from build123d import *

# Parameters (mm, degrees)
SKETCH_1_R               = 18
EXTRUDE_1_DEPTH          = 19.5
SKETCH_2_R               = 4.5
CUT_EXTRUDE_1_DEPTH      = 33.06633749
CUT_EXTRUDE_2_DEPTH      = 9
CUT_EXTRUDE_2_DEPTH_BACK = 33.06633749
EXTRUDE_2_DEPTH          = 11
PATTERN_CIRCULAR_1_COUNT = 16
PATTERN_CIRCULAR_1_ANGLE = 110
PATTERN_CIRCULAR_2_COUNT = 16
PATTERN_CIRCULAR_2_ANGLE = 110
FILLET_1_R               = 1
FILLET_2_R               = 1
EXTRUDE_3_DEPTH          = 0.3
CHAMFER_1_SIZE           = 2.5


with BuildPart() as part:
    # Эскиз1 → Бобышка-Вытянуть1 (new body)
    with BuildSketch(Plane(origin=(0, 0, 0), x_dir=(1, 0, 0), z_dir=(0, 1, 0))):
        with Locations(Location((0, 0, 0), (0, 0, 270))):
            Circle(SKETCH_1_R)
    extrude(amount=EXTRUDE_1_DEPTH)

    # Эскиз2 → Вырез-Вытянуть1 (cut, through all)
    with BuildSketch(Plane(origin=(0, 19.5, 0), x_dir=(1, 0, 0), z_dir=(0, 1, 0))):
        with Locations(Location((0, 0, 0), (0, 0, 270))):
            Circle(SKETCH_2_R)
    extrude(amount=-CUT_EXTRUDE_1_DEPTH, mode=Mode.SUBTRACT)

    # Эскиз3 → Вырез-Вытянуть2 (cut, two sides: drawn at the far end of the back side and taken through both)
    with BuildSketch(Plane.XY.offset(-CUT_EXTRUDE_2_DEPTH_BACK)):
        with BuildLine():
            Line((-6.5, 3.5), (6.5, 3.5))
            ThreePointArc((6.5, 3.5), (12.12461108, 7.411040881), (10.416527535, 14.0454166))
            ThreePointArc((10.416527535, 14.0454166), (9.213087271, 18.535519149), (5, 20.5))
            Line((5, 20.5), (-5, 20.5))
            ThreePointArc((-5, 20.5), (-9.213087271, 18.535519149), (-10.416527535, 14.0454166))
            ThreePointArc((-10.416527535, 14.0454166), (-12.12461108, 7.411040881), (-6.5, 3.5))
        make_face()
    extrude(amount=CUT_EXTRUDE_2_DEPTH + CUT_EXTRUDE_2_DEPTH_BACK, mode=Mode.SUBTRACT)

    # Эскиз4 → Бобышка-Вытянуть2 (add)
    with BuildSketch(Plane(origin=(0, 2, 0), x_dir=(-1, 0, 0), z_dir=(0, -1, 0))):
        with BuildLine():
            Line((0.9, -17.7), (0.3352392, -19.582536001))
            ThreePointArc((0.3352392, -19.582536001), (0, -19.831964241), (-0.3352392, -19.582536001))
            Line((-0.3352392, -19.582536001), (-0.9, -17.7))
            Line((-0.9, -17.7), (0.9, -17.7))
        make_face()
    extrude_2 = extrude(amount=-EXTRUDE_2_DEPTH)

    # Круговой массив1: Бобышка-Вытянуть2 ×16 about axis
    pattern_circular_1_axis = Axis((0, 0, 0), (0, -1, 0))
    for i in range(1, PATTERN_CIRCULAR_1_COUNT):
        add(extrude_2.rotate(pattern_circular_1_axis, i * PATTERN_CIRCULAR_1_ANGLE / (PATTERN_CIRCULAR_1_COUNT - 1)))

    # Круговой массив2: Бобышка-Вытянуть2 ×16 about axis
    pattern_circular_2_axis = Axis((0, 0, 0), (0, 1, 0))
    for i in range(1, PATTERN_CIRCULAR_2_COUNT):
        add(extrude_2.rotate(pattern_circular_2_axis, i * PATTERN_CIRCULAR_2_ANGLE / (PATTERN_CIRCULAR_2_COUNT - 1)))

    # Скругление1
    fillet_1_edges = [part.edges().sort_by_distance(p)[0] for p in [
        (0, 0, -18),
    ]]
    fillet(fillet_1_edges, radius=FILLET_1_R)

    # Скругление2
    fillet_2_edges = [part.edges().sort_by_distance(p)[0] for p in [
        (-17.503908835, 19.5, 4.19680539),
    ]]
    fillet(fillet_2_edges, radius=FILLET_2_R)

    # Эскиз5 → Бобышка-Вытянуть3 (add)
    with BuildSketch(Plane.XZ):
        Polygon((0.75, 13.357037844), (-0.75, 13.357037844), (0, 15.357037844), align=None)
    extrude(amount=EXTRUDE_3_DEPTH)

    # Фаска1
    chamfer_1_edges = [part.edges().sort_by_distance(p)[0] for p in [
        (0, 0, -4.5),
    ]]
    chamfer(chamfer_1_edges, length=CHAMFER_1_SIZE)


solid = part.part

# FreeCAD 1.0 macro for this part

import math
import FreeCAD as App
import Part
import Sketcher


def edges_at(feature, points):
    """Names of the edges that pass closest to the given points."""
    edges = feature.Shape.Edges
    near = lambda p: min(range(len(edges)), key=lambda i: edges[i].distToShape(Part.Vertex(*p))[0])
    return sorted({f"Edge{near(p) + 1}" for p in points})


def add_polygon(sketch, points):
    """Adds a closed chain of lines whose ends are joined by coincident constraints."""
    first, n = sketch.GeometryCount, len(points)
    for a, b in zip(points, points[1:] + points[:1]):
        sketch.addGeometry(Part.LineSegment(App.Vector(*a, 0), App.Vector(*b, 0)), False)
    for i in range(n):
        sketch.addConstraint(Sketcher.Constraint("Coincident", first + i, 2, first + (i + 1) % n, 1))

doc = App.newDocument("Part")
body = doc.addObject("PartDesign::Body", "Body")

# Sketch on XZ plane
sketch1 = doc.addObject("Sketcher::SketchObject", "Sketch")
body.addObject(sketch1)
sketch1.AttachmentSupport = (doc.XZ_Plane, [""])
sketch1.MapMode = "FlatFace"
sketch1.addGeometry(Part.Circle(App.Vector(0, 0, 0), App.Vector(0, 0, 1), 18), False)
sketch1.addConstraint(Sketcher.Constraint("Coincident", 0, 3, -1, 1))
sketch1.addConstraint(Sketcher.Constraint("Diameter", 0, 36.0))
pad1 = doc.addObject("PartDesign::Pad", "Pad")
body.addObject(pad1)
pad1.Profile = sketch1
pad1.Length = 19.5
pad1.Reversed = True

# Sketch on XZ plane
sketch2 = doc.addObject("Sketcher::SketchObject", "Sketch001")
body.addObject(sketch2)
sketch2.AttachmentSupport = (doc.XZ_Plane, [""])
sketch2.MapMode = "FlatFace"
sketch2.AttachmentOffset = App.Placement(App.Vector(0, 0, -19.5), App.Rotation())
sketch2.addGeometry(Part.Circle(App.Vector(0, 0, 0), App.Vector(0, 0, 1), 4.5), False)
sketch2.addConstraint(Sketcher.Constraint("Coincident", 0, 3, -1, 1))
sketch2.addConstraint(Sketcher.Constraint("Diameter", 0, 9.0))
pocket1 = doc.addObject("PartDesign::Pocket", "Pocket")
body.addObject(pocket1)
pocket1.Profile = sketch2
pocket1.Type = "ThroughAll"
pocket1.Reversed = True

# Sketch on XY plane
sketch3 = doc.addObject("Sketcher::SketchObject", "Sketch002")
body.addObject(sketch3)
sketch3.AttachmentSupport = (doc.XY_Plane, [""])
sketch3.MapMode = "FlatFace"
sketch3.addGeometry(Part.LineSegment(App.Vector(-6, 4, 0), App.Vector(6, 4, 0)), False)
sketch3.addGeometry(Part.ArcOfCircle(Part.Circle(App.Vector(6, 10, 0), App.Vector(0, 0, 1), 6), math.radians(-90), math.radians(49)), False)
sketch3.addGeometry(Part.ArcOfCircle(Part.Circle(App.Vector(5, 15, 0), App.Vector(0, 0, 1), 6), math.radians(-10), math.radians(90)), False)
sketch3.addGeometry(Part.LineSegment(App.Vector(5, 20, 0), App.Vector(-5, 20, 0)), False)
sketch3.addGeometry(Part.ArcOfCircle(Part.Circle(App.Vector(-5, 15, 0), App.Vector(0, 0, 1), 6), math.radians(90), math.radians(190)), False)
sketch3.addGeometry(Part.ArcOfCircle(Part.Circle(App.Vector(-6, 10, 0), App.Vector(0, 0, 1), 6), math.radians(131), math.radians(270)), False)
sketch3.addConstraint(Sketcher.Constraint("Tangent", 0, 2, 1, 1))
sketch3.addConstraint(Sketcher.Constraint("Coincident", 1, 2, 2, 1))
sketch3.addConstraint(Sketcher.Constraint("Tangent", 2, 2, 3, 1))
sketch3.addConstraint(Sketcher.Constraint("Tangent", 3, 2, 4, 1))
sketch3.addConstraint(Sketcher.Constraint("Coincident", 4, 2, 5, 1))
sketch3.addConstraint(Sketcher.Constraint("Tangent", 5, 2, 0, 1))
sketch3.addConstraint(Sketcher.Constraint("Horizontal", 0))
sketch3.addConstraint(Sketcher.Constraint("Horizontal", 3))
sketch3.addConstraint(Sketcher.Constraint("Equal", 2, 4))
sketch3.addConstraint(Sketcher.Constraint("Equal", 1, 5))
sketch3.addConstraint(Sketcher.Constraint("Symmetric", 1, 2, 4, 2, -2))
sketch3.addConstraint(Sketcher.Constraint("Radius", 1, 6.0))
sketch3.addConstraint(Sketcher.Constraint("Radius", 2, 5.5))
sketch3.addConstraint(Sketcher.Constraint("DistanceX", 0, 1, 0, 2, 13.0))
sketch3.addConstraint(Sketcher.Constraint("DistanceX", 3, 2, 3, 1, 10.0))
sketch3.addConstraint(Sketcher.Constraint("DistanceY", -1, 1, 2, 3, 15.0))
sketch3.addConstraint(Sketcher.Constraint("DistanceY", 1, 3, 2, 2, 11.0))
pocket2 = doc.addObject("PartDesign::Pocket", "Pocket001")
body.addObject(pocket2)
pocket2.Profile = sketch3
pocket2.Type = "TwoLengths"
pocket2.Length = 9
pocket2.Length2 = 33.066337
pocket2.Reversed = True

# Sketch on XZ plane
sketch4 = doc.addObject("Sketcher::SketchObject", "Sketch003")
body.addObject(sketch4)
sketch4.AttachmentSupport = (doc.XZ_Plane, [""])
sketch4.MapMode = "FlatFace"
sketch4.AttachmentOffset = App.Placement(App.Vector(0, 0, -2), App.Rotation())
sketch4.addGeometry(Part.LineSegment(App.Vector(-0.34, 19.58, 0), App.Vector(-0.9, 17.7, 0)), False)
sketch4.addGeometry(Part.LineSegment(App.Vector(-0.9, 17.7, 0), App.Vector(0.9, 17.7, 0)), False)
sketch4.addGeometry(Part.LineSegment(App.Vector(0.9, 17.7, 0), App.Vector(0.34, 19.58, 0)), False)
sketch4.addGeometry(Part.ArcOfCircle(Part.Circle(App.Vector(0, 19.48, 0), App.Vector(0, 0, 1), 0.35), math.radians(17), math.radians(163)), False)
sketch4.addConstraint(Sketcher.Constraint("Coincident", 0, 2, 1, 1))
sketch4.addConstraint(Sketcher.Constraint("Coincident", 1, 2, 2, 1))
sketch4.addConstraint(Sketcher.Constraint("Tangent", 2, 2, 3, 1))
sketch4.addConstraint(Sketcher.Constraint("Tangent", 3, 2, 0, 1))
sketch4.addConstraint(Sketcher.Constraint("Horizontal", 1))
sketch4.addConstraint(Sketcher.Constraint("Symmetric", 2, 2, 3, 2, -2))
sketch4.addConstraint(Sketcher.Constraint("Radius", 3, 0.35))
sketch4.addConstraint(Sketcher.Constraint("DistanceX", 1, 1, 1, 2, 1.8))
sketch4.addConstraint(Sketcher.Constraint("DistanceY", -1, 1, 0, 2, 17.7))
sketch4.addConstraint(Sketcher.Constraint("DistanceX", -1, 1, 2, 2, 0.335239))
pad2 = doc.addObject("PartDesign::Pad", "Pad001")
body.addObject(pad2)
pad2.Profile = sketch4
pad2.Length = 11
pad2.Reversed = True
doc.recompute()

polarpattern = doc.addObject("PartDesign::PolarPattern", "PolarPattern")
body.addObject(polarpattern)
polarpattern.Originals = [pad2]
polarpattern.Axis = (doc.Y_Axis, [""])
polarpattern.Angle = 110
polarpattern.Occurrences = 16
polarpattern.Reversed = True
body.Tip = polarpattern
doc.recompute()

polarpattern2 = doc.addObject("PartDesign::PolarPattern", "PolarPattern001")
body.addObject(polarpattern2)
polarpattern2.Originals = [pad2]
polarpattern2.Axis = (doc.Y_Axis, [""])
polarpattern2.Angle = 110
polarpattern2.Occurrences = 16
body.Tip = polarpattern2
doc.recompute()

fillet = doc.addObject("PartDesign::Fillet", "Fillet")
body.addObject(fillet)
fillet.Base = (polarpattern2, edges_at(polarpattern2, [(0, 0, -18)]))
fillet.Radius = 1
doc.recompute()

fillet2 = doc.addObject("PartDesign::Fillet", "Fillet001")
body.addObject(fillet2)
fillet2.Base = (fillet, edges_at(fillet, [(-17.504, 19.5, 4.197)]))
fillet2.Radius = 1

# Sketch on XZ plane
sketch5 = doc.addObject("Sketcher::SketchObject", "Sketch004")
body.addObject(sketch5)
sketch5.AttachmentSupport = (doc.XZ_Plane, [""])
sketch5.MapMode = "FlatFace"
add_polygon(sketch5, [(-0.8, 13.4), (0.8, 13.4), (0, 15.4)])  # lines 0-2
sketch5.addConstraint(Sketcher.Constraint("Horizontal", 0))
sketch5.addConstraint(Sketcher.Constraint("PointOnObject", 1, 2, -2))
sketch5.addConstraint(Sketcher.Constraint("Equal", 1, 2))
sketch5.addConstraint(Sketcher.Constraint("DistanceX", 0, 1, 0, 2, 1.5))
sketch5.addConstraint(Sketcher.Constraint("DistanceY", 0, 2, 1, 2, 2.0))
sketch5.addConstraint(Sketcher.Constraint("DistanceY", -1, 1, 0, 2, 13.357038))
pad3 = doc.addObject("PartDesign::Pad", "Pad002")
body.addObject(pad3)
pad3.Profile = sketch5
pad3.Length = 0.3
doc.recompute()

chamfer = doc.addObject("PartDesign::Chamfer", "Chamfer")
body.addObject(chamfer)
chamfer.Base = (pad3, edges_at(pad3, [(0, 0, -4.5)]))
chamfer.Size = 2.5

doc.recompute()
